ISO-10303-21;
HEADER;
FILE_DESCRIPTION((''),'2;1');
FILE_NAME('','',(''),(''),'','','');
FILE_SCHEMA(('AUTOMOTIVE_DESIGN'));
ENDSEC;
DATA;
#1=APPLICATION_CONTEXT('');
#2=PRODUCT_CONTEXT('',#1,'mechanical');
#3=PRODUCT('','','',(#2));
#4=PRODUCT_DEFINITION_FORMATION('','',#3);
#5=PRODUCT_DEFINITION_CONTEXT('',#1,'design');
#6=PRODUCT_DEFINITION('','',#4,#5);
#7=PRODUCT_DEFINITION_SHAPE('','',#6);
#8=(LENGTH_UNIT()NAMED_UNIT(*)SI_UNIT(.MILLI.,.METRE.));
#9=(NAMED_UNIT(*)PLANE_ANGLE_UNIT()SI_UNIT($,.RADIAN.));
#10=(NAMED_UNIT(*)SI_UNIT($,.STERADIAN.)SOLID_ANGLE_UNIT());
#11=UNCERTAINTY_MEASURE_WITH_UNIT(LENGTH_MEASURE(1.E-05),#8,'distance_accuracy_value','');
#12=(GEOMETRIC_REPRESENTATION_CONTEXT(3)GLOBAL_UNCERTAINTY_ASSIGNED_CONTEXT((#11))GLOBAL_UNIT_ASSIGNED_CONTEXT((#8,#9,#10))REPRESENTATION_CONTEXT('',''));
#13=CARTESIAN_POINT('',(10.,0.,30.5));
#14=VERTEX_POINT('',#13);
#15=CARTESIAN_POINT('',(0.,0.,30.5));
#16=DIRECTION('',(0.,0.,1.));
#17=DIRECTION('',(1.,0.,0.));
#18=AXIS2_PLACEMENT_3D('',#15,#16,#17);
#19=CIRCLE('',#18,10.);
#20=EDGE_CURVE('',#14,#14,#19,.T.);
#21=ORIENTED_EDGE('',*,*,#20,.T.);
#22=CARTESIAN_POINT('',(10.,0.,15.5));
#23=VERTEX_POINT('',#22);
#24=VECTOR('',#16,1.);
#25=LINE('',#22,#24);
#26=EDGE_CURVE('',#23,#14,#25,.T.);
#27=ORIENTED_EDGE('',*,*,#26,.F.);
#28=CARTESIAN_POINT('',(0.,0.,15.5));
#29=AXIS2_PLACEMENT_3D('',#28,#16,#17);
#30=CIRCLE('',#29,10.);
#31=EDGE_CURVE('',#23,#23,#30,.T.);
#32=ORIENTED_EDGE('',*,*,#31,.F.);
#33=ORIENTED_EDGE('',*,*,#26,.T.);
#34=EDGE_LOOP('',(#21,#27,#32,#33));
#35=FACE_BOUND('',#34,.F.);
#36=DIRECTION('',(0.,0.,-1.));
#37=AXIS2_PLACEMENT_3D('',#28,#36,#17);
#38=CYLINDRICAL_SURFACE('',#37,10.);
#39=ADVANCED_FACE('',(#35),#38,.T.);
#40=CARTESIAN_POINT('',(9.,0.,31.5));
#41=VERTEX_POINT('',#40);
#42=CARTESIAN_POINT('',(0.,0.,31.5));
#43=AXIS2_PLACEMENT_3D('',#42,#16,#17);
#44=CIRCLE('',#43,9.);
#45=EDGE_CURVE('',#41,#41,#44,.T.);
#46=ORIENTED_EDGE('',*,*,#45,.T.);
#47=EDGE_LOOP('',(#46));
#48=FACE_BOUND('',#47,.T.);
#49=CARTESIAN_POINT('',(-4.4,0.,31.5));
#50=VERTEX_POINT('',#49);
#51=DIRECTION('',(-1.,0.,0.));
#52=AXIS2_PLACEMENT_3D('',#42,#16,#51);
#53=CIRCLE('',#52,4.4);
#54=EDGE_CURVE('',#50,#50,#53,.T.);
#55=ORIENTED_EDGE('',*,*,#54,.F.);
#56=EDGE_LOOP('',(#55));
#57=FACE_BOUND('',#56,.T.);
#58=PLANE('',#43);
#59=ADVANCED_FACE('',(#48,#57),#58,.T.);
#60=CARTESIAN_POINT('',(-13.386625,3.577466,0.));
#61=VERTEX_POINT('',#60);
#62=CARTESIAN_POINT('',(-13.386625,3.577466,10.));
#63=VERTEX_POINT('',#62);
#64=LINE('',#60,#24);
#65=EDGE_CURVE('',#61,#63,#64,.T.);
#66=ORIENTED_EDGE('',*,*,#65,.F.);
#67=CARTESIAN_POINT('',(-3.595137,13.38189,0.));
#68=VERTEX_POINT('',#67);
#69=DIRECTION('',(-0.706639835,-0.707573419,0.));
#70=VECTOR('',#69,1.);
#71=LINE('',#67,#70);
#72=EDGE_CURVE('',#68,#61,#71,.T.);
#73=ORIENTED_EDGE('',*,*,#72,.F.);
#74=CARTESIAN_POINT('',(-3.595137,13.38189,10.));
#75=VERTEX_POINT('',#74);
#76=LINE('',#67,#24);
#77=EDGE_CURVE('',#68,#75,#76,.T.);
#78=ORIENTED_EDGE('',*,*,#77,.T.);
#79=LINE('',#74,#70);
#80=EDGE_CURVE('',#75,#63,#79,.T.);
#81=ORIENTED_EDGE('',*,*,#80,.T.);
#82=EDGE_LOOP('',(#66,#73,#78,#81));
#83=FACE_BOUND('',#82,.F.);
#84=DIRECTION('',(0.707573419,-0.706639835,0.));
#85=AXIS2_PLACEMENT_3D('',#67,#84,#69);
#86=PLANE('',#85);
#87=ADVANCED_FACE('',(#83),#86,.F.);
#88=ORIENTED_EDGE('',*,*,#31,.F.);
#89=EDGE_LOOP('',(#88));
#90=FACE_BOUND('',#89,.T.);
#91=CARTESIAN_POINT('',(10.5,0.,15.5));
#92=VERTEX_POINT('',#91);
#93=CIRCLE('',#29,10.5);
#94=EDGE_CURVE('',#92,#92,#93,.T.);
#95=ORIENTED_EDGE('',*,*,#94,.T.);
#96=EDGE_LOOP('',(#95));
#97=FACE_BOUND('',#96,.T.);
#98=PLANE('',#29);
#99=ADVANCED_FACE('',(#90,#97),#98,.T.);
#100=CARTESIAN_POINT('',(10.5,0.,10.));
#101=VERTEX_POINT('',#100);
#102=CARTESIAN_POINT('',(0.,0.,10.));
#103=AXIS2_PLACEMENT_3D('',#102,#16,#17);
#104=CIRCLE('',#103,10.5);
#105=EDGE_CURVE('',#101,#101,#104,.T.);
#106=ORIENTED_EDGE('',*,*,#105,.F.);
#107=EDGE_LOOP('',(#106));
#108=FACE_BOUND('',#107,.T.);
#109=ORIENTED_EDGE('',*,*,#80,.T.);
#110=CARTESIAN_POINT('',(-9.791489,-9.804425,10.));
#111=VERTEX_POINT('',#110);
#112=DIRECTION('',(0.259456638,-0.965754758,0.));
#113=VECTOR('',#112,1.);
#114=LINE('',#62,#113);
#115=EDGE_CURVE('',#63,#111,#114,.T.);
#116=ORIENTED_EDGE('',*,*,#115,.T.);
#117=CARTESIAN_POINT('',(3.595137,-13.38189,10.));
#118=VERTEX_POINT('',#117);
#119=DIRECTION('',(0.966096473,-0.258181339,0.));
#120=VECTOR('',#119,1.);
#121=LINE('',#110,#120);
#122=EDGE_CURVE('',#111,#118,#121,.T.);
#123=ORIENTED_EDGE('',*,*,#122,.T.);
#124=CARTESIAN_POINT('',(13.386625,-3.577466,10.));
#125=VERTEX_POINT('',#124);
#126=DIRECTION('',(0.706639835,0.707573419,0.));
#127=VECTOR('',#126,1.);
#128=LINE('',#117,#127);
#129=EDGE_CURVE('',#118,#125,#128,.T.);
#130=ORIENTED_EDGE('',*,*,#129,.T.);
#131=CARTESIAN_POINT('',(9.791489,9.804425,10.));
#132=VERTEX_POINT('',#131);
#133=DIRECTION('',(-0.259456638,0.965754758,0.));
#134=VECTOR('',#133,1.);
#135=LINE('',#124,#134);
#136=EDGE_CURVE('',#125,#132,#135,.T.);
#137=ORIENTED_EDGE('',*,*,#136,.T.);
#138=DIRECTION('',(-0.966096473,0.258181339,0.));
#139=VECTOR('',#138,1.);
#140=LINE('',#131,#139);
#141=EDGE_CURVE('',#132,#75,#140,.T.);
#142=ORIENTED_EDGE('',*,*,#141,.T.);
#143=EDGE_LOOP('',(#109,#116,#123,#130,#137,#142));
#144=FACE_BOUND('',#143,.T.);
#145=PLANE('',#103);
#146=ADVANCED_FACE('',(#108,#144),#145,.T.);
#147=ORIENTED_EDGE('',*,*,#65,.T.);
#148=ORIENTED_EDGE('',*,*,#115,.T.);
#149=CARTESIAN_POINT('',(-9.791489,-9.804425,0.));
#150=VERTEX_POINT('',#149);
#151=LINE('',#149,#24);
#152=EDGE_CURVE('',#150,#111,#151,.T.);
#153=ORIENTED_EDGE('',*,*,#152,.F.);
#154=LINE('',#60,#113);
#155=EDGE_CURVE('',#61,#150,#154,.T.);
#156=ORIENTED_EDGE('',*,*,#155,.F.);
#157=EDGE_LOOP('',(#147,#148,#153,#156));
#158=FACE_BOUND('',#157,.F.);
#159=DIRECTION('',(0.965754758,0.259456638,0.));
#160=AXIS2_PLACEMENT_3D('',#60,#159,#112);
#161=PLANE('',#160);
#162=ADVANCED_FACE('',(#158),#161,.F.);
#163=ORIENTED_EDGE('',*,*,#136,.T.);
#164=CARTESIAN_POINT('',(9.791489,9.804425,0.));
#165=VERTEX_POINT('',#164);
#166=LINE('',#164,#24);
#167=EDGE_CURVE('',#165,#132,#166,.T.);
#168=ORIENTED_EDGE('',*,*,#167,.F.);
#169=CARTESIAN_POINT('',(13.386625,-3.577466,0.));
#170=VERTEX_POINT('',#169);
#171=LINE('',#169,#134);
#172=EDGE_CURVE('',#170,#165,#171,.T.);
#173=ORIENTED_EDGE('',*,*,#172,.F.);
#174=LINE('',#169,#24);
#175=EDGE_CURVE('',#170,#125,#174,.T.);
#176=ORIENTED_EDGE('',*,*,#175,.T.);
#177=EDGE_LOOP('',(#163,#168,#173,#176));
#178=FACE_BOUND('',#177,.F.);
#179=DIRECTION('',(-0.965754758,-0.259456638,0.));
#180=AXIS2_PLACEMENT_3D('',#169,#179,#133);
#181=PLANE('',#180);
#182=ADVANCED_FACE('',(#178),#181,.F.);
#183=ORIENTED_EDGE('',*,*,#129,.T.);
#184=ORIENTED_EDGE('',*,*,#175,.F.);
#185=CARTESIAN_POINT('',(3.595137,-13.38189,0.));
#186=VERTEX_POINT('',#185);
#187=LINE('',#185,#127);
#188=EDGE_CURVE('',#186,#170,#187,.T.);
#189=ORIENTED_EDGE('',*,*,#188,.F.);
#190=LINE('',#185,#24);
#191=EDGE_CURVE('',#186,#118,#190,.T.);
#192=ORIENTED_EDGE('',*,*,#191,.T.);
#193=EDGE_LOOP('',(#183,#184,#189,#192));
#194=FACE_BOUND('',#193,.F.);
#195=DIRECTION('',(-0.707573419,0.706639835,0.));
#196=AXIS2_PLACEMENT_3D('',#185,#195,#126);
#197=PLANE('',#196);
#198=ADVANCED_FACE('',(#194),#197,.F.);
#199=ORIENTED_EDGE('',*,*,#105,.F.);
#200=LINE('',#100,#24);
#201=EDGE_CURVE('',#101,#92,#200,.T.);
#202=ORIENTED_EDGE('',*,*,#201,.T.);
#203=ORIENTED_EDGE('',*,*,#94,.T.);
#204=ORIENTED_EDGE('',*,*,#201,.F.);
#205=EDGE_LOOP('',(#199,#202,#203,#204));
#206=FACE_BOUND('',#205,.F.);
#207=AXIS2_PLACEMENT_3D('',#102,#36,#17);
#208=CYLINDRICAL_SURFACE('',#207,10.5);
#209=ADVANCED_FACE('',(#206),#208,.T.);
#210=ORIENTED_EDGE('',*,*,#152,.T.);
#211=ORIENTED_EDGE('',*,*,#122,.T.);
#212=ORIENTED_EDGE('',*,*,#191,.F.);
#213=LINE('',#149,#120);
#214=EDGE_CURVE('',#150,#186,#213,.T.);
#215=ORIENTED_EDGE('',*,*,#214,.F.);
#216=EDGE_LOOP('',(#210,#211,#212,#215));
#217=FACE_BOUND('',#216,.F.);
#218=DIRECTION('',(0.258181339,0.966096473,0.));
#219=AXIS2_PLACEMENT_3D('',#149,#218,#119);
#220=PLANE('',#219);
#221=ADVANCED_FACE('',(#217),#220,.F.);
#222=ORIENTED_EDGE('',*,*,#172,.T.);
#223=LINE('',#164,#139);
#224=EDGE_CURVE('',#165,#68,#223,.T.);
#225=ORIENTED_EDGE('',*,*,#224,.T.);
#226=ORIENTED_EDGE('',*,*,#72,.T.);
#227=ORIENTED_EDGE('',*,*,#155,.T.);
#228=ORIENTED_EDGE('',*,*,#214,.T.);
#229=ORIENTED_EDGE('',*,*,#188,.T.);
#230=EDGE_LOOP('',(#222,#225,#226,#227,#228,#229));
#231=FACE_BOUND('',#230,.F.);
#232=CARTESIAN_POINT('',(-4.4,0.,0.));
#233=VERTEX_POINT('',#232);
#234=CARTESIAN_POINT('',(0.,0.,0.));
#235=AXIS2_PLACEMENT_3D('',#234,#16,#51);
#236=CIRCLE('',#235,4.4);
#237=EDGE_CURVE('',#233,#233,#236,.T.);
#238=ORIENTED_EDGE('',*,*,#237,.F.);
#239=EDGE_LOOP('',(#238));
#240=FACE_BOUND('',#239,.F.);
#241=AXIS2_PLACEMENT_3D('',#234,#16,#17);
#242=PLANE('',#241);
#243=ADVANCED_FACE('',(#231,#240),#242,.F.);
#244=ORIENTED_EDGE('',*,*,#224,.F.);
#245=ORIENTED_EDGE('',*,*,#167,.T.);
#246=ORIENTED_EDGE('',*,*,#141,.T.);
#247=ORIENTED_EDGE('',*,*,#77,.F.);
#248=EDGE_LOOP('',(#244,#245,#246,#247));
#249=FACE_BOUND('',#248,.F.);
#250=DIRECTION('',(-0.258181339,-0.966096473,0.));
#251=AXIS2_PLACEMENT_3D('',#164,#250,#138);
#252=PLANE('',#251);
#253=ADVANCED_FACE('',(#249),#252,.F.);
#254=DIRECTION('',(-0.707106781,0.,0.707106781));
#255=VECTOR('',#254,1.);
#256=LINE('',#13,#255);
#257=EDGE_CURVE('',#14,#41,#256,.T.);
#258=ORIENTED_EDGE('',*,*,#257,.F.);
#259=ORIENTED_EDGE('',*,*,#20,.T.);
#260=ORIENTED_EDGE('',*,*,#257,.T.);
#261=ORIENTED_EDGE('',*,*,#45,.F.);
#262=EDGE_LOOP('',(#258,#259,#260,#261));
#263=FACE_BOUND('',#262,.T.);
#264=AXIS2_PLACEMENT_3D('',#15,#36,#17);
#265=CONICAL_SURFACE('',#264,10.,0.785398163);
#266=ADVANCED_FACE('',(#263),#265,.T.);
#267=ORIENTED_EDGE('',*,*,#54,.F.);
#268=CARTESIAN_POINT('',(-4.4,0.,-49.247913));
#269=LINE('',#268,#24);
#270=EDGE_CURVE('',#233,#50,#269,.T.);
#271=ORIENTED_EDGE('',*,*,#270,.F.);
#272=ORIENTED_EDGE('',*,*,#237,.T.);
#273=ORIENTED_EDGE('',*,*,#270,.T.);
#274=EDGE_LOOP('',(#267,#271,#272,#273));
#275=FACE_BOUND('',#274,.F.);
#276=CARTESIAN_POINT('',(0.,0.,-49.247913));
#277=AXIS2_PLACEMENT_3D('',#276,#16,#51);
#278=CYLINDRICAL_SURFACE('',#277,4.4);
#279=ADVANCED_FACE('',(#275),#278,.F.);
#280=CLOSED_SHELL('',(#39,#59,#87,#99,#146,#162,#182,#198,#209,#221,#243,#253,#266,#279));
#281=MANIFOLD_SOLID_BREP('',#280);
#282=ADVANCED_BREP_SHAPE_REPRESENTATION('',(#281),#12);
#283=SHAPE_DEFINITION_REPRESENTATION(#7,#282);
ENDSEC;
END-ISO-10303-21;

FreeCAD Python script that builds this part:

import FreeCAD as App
import Part
import Sketcher
from FreeCAD import Vector


def edges_at(feature, points):
    """Names of the edges that pass closest to the given points."""
    edges = feature.Shape.Edges
    near = lambda p: min(range(len(edges)), key=lambda i: edges[i].distToShape(Part.Vertex(*p))[0])
    return sorted({f"Edge{near(p) + 1}" for p in points})


def add_polygon(sketch, points):
    """Adds a closed chain of lines whose ends are joined by coincident constraints."""
    first, n = sketch.GeometryCount, len(points)
    for a, b in zip(points, points[1:] + points[:1]):
        sketch.addGeometry(Part.LineSegment(App.Vector(*a, 0), App.Vector(*b, 0)), False)
    for i in range(n):
        sketch.addConstraint(Sketcher.Constraint("Coincident", first + i, 2, first + (i + 1) % n, 1))

doc = App.newDocument("Part")
body = doc.addObject("PartDesign::Body", "Body")

sketch1 = body.newObject("Sketcher::SketchObject", "Sketch")
sketch1.AttachmentSupport = (doc.getObject("XY_Plane"), [""])
sketch1.MapMode = "FlatFace"
add_polygon(sketch1, [(4, -13), (13, -4), (10, 10), (-4, 13), (-13, 4), (-10, -10)])
sketch1.addConstraint([
    Sketcher.Constraint("Symmetric", 0, 2, 3, 2, -1, 1),
    Sketcher.Constraint("Symmetric", 1, 2, 4, 2, -1, 1),
    Sketcher.Constraint("Symmetric", 2, 2, 5, 2, -1, 1),
    Sketcher.Constraint("Equal", 0, 1),
    Sketcher.Constraint("Equal", 1, 2),
    Sketcher.Constraint("DistanceX", -1, 1, 1, 2, 9.791489),
    Sketcher.Constraint("DistanceY", -1, 1, 2, 2, 13.38189),
    Sketcher.Constraint("DistanceY", 0, 2, 1, 2, 13.38189),
    Sketcher.Constraint("DistanceX", 3, 2, 2, 2, 9.791489),
])
pad1 = body.newObject("PartDesign::Pad", "Pad")
pad1.Profile = sketch1
pad1.Length = 10

sketch2 = body.newObject("Sketcher::SketchObject", "Sketch001")
sketch2.AttachmentSupport = (doc.getObject("XY_Plane"), [""])
sketch2.MapMode = "FlatFace"
sketch2.AttachmentOffset = App.Placement(Vector(0, 0, 10), App.Rotation())
sketch2.addGeometry(Part.Circle(Vector(0, 0, 0), Vector(0, 0, 1), 10), False)
sketch2.addConstraint([
    Sketcher.Constraint("Coincident", 0, 3, -1, 1),
    Sketcher.Constraint("Diameter", 0, 21.0),
])
pad2 = body.newObject("PartDesign::Pad", "Pad001")
pad2.Profile = sketch2
pad2.Length = 5.5

sketch3 = body.newObject("Sketcher::SketchObject", "Sketch002")
sketch3.AttachmentSupport = (doc.getObject("XY_Plane"), [""])
sketch3.MapMode = "FlatFace"
sketch3.AttachmentOffset = App.Placement(Vector(0, 0, 15.5), App.Rotation())
sketch3.addGeometry(Part.Circle(Vector(0, 0, 0), Vector(0, 0, 1), 10), False)
sketch3.addConstraint([
    Sketcher.Constraint("Coincident", 0, 3, -1, 1),
    Sketcher.Constraint("Diameter", 0, 20.0),
])
pad3 = body.newObject("PartDesign::Pad", "Pad002")
pad3.Profile = sketch3
pad3.Length = 16
doc.recompute()

chamfer = body.newObject("PartDesign::Chamfer", "Chamfer")
chamfer.Base = (pad3, edges_at(pad3, [(-10, 0, 31.5)]))
chamfer.Size = 1

sketch4 = body.newObject("Sketcher::SketchObject", "Sketch003")
sketch4.AttachmentSupport = (doc.getObject("XY_Plane"), [""])
sketch4.MapMode = "FlatFace"
sketch4.addGeometry(Part.Circle(Vector(0, 0, 0), Vector(0, 0, 1), 4.4), False)
sketch4.addConstraint([
    Sketcher.Constraint("Coincident", 0, 3, -1, 1),
    Sketcher.Constraint("Diameter", 0, 8.8),
])
doc.recompute()
hole = body.newObject("PartDesign::Hole", "Hole")
hole.Profile = sketch4
hole.ThreadType = "None"
hole.Diameter = 8.8
hole.DepthType = "ThroughAll"
hole.Reversed = True

doc.recompute()
